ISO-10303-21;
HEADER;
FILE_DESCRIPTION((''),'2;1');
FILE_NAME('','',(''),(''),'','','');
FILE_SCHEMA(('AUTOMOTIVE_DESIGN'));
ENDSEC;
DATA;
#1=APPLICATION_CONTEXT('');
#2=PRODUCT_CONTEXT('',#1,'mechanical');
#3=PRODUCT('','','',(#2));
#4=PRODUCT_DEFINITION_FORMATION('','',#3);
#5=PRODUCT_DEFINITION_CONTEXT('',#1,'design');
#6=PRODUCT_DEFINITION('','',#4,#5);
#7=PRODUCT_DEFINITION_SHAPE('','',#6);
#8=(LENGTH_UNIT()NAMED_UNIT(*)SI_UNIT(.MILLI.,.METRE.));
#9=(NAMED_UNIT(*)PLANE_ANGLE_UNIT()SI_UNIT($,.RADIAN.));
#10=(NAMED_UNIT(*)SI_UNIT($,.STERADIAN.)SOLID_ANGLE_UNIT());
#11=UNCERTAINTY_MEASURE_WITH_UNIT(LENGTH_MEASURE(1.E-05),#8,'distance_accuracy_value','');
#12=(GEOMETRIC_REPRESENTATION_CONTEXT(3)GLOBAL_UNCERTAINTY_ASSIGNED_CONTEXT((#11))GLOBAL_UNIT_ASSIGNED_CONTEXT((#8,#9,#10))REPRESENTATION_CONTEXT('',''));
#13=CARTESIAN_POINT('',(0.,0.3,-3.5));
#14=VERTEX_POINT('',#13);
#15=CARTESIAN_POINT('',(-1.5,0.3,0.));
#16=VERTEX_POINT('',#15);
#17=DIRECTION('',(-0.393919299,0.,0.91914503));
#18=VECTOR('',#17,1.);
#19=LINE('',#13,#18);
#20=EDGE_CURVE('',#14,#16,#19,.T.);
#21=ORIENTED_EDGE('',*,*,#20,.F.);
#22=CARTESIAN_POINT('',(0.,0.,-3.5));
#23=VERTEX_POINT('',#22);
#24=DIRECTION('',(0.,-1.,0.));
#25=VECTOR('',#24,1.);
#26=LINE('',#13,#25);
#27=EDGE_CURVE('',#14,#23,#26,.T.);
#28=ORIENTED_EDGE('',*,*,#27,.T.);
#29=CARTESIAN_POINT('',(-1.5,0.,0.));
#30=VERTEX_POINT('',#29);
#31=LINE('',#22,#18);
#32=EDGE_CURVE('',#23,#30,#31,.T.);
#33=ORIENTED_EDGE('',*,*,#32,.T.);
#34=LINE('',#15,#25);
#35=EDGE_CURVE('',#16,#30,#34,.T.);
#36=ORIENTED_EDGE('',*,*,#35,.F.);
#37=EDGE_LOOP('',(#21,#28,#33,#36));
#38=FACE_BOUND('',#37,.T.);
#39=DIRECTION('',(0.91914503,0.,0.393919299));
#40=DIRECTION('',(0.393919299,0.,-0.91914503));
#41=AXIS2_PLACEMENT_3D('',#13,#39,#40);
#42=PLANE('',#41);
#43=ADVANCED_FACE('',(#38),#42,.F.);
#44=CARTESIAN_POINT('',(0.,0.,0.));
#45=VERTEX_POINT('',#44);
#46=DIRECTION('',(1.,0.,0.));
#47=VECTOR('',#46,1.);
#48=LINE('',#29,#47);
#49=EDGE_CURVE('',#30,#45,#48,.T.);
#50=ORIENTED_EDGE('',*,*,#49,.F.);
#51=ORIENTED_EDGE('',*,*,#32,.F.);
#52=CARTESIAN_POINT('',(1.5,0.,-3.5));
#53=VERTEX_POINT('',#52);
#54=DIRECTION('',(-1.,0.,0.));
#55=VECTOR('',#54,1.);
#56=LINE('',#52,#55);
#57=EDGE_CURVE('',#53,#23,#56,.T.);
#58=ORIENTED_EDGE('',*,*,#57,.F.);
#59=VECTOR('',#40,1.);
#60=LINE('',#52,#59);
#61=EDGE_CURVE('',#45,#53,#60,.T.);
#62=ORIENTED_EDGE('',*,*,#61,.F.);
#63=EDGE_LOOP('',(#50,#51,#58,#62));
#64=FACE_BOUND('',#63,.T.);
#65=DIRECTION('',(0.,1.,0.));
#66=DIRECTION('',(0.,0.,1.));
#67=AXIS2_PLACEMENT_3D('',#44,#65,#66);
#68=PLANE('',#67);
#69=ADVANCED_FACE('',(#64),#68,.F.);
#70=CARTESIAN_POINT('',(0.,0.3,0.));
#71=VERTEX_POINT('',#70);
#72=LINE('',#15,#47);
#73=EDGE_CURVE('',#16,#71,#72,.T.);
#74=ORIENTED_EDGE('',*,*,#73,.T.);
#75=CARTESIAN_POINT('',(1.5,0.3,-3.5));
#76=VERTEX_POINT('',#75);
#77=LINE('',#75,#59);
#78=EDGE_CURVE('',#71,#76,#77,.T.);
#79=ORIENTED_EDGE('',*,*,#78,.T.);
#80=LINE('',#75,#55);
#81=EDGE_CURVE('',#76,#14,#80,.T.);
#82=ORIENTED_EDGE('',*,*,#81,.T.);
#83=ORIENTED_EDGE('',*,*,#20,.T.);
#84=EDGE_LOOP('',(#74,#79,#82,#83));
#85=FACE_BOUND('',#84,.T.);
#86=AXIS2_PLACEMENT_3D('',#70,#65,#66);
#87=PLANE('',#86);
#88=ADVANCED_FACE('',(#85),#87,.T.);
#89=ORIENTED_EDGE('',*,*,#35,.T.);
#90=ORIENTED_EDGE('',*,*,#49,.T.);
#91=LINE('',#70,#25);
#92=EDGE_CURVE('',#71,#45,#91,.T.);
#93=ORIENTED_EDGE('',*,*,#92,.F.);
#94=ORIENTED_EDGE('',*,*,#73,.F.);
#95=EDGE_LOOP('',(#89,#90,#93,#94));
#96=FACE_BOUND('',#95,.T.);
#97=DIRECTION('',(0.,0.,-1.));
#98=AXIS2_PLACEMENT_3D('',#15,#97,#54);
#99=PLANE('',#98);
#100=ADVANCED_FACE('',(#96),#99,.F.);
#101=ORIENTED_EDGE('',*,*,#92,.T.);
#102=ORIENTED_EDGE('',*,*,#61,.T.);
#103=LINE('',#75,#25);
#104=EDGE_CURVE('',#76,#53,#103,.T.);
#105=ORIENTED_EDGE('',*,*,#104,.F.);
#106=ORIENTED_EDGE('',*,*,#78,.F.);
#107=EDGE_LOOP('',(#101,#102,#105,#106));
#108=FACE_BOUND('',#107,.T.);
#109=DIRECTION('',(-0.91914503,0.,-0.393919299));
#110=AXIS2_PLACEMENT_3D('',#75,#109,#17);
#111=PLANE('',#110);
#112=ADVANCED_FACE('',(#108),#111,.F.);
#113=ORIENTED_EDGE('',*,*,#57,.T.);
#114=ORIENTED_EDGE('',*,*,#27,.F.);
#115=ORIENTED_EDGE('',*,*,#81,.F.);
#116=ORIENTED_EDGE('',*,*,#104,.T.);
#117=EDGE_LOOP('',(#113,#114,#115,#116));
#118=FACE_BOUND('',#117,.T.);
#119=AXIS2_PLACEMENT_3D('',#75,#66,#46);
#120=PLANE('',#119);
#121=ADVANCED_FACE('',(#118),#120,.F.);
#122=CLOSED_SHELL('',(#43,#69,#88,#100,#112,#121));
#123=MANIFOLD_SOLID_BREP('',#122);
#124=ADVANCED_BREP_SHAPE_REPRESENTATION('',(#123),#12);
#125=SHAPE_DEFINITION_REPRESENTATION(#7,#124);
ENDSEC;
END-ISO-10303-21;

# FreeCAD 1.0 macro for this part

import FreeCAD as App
import Part
import Sketcher

V = App.Vector

doc = App.newDocument("Part")
body = doc.addObject("PartDesign::Body", "Body")

# Sketch on XZ plane
sketch1 = body.newObject("Sketcher::SketchObject", "Sketch")
sketch1.AttachmentSupport = (doc.getObject("XZ_Plane"), [""])
sketch1.MapMode = "FlatFace"
sketch1.addGeometry(Part.LineSegment(V(1.5, -3.5, 0), V(0, -3.5, 0)), False)
sketch1.addGeometry(Part.LineSegment(V(0, -3.5, 0), V(-1.5, 0, 0)), False)
sketch1.addGeometry(Part.LineSegment(V(-1.5, 0, 0), V(0, 0, 0)), False)
sketch1.addGeometry(Part.LineSegment(V(0, 0, 0), V(1.5, -3.5, 0)), False)
sketch1.addConstraint(Sketcher.Constraint("Coincident", 0, 2, 1, 1))
sketch1.addConstraint(Sketcher.Constraint("Coincident", 1, 2, 2, 1))
sketch1.addConstraint(Sketcher.Constraint("Coincident", 2, 2, 3, 1))
sketch1.addConstraint(Sketcher.Constraint("Coincident", 3, 2, 0, 1))
sketch1.addConstraint(Sketcher.Constraint("Horizontal", 0))
sketch1.addConstraint(Sketcher.Constraint("Horizontal", 2))
sketch1.addConstraint(Sketcher.Constraint("Coincident", 2, 2, -1, 1))
sketch1.addConstraint(Sketcher.Constraint("PointOnObject", 0, 2, -2))
sketch1.addConstraint(Sketcher.Constraint("Parallel", 1, 3))
sketch1.addConstraint(Sketcher.Constraint("DistanceX", 0, 2, 0, 1, 1.5))
sketch1.addConstraint(Sketcher.Constraint("DistanceY", 0, 2, -1, 1, 3.5))
pad1 = body.newObject("PartDesign::Pad", "Pad")
pad1.Profile = sketch1
pad1.Length = 0.3
pad1.Reversed = True

doc.recompute()
